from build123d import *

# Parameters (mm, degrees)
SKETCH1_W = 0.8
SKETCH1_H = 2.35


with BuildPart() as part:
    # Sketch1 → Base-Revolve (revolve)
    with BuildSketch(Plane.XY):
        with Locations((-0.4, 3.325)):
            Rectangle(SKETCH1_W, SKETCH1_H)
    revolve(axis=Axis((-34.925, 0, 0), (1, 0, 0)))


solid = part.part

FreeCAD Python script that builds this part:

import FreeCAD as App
import Part
import Sketcher

V = App.Vector
Q = App.Units.Quantity

doc = App.newDocument("Part")
body = doc.addObject("PartDesign::Body", "Body")

sketch1 = body.newObject("Sketcher::SketchObject", "Sketch")
sketch1.AttachmentSupport = (doc.getObject("XY_Plane"), [""])
sketch1.MapMode = "FlatFace"
sketch1.addGeometry(Part.LineSegment(V(-0.8, 4.5, 0), V(-0.8, 2.15, 0)), False)
sketch1.addGeometry(Part.LineSegment(V(-0.8, 2.15, 0), V(0, 2.15, 0)), False)
sketch1.addGeometry(Part.LineSegment(V(0, 2.15, 0), V(0, 4.5, 0)), False)
sketch1.addGeometry(Part.LineSegment(V(0, 4.5, 0), V(-0.8, 4.5, 0)), False)
sketch1.addConstraint(Sketcher.Constraint("Coincident", 0, 2, 1, 1))
sketch1.addConstraint(Sketcher.Constraint("Coincident", 1, 2, 2, 1))
sketch1.addConstraint(Sketcher.Constraint("Coincident", 2, 2, 3, 1))
sketch1.addConstraint(Sketcher.Constraint("Coincident", 3, 2, 0, 1))
sketch1.addConstraint(Sketcher.Constraint("Vertical", 0))
sketch1.addConstraint(Sketcher.Constraint("Horizontal", 1))
sketch1.addConstraint(Sketcher.Constraint("Vertical", 2))
sketch1.addConstraint(Sketcher.Constraint("Horizontal", 3))
sketch1.addConstraint(Sketcher.Constraint("PointOnObject", 1, 2, -2))
sketch1.addConstraint(Sketcher.Constraint("DistanceX", 1, 1, 1, 2, Q("0.8 mm")))
sketch1.addConstraint(Sketcher.Constraint("DistanceY", 0, 2, 0, 1, Q("2.35 mm")))
sketch1.addConstraint(Sketcher.Constraint("DistanceY", -1, 1, 2, 2, Q("4.5 mm")))
revolution = body.newObject("PartDesign::Revolution", "Revolution")
revolution.Profile = sketch1
revolution.ReferenceAxis = (sketch1, ["H_Axis"])
revolution.Angle = 360

doc.recompute()
